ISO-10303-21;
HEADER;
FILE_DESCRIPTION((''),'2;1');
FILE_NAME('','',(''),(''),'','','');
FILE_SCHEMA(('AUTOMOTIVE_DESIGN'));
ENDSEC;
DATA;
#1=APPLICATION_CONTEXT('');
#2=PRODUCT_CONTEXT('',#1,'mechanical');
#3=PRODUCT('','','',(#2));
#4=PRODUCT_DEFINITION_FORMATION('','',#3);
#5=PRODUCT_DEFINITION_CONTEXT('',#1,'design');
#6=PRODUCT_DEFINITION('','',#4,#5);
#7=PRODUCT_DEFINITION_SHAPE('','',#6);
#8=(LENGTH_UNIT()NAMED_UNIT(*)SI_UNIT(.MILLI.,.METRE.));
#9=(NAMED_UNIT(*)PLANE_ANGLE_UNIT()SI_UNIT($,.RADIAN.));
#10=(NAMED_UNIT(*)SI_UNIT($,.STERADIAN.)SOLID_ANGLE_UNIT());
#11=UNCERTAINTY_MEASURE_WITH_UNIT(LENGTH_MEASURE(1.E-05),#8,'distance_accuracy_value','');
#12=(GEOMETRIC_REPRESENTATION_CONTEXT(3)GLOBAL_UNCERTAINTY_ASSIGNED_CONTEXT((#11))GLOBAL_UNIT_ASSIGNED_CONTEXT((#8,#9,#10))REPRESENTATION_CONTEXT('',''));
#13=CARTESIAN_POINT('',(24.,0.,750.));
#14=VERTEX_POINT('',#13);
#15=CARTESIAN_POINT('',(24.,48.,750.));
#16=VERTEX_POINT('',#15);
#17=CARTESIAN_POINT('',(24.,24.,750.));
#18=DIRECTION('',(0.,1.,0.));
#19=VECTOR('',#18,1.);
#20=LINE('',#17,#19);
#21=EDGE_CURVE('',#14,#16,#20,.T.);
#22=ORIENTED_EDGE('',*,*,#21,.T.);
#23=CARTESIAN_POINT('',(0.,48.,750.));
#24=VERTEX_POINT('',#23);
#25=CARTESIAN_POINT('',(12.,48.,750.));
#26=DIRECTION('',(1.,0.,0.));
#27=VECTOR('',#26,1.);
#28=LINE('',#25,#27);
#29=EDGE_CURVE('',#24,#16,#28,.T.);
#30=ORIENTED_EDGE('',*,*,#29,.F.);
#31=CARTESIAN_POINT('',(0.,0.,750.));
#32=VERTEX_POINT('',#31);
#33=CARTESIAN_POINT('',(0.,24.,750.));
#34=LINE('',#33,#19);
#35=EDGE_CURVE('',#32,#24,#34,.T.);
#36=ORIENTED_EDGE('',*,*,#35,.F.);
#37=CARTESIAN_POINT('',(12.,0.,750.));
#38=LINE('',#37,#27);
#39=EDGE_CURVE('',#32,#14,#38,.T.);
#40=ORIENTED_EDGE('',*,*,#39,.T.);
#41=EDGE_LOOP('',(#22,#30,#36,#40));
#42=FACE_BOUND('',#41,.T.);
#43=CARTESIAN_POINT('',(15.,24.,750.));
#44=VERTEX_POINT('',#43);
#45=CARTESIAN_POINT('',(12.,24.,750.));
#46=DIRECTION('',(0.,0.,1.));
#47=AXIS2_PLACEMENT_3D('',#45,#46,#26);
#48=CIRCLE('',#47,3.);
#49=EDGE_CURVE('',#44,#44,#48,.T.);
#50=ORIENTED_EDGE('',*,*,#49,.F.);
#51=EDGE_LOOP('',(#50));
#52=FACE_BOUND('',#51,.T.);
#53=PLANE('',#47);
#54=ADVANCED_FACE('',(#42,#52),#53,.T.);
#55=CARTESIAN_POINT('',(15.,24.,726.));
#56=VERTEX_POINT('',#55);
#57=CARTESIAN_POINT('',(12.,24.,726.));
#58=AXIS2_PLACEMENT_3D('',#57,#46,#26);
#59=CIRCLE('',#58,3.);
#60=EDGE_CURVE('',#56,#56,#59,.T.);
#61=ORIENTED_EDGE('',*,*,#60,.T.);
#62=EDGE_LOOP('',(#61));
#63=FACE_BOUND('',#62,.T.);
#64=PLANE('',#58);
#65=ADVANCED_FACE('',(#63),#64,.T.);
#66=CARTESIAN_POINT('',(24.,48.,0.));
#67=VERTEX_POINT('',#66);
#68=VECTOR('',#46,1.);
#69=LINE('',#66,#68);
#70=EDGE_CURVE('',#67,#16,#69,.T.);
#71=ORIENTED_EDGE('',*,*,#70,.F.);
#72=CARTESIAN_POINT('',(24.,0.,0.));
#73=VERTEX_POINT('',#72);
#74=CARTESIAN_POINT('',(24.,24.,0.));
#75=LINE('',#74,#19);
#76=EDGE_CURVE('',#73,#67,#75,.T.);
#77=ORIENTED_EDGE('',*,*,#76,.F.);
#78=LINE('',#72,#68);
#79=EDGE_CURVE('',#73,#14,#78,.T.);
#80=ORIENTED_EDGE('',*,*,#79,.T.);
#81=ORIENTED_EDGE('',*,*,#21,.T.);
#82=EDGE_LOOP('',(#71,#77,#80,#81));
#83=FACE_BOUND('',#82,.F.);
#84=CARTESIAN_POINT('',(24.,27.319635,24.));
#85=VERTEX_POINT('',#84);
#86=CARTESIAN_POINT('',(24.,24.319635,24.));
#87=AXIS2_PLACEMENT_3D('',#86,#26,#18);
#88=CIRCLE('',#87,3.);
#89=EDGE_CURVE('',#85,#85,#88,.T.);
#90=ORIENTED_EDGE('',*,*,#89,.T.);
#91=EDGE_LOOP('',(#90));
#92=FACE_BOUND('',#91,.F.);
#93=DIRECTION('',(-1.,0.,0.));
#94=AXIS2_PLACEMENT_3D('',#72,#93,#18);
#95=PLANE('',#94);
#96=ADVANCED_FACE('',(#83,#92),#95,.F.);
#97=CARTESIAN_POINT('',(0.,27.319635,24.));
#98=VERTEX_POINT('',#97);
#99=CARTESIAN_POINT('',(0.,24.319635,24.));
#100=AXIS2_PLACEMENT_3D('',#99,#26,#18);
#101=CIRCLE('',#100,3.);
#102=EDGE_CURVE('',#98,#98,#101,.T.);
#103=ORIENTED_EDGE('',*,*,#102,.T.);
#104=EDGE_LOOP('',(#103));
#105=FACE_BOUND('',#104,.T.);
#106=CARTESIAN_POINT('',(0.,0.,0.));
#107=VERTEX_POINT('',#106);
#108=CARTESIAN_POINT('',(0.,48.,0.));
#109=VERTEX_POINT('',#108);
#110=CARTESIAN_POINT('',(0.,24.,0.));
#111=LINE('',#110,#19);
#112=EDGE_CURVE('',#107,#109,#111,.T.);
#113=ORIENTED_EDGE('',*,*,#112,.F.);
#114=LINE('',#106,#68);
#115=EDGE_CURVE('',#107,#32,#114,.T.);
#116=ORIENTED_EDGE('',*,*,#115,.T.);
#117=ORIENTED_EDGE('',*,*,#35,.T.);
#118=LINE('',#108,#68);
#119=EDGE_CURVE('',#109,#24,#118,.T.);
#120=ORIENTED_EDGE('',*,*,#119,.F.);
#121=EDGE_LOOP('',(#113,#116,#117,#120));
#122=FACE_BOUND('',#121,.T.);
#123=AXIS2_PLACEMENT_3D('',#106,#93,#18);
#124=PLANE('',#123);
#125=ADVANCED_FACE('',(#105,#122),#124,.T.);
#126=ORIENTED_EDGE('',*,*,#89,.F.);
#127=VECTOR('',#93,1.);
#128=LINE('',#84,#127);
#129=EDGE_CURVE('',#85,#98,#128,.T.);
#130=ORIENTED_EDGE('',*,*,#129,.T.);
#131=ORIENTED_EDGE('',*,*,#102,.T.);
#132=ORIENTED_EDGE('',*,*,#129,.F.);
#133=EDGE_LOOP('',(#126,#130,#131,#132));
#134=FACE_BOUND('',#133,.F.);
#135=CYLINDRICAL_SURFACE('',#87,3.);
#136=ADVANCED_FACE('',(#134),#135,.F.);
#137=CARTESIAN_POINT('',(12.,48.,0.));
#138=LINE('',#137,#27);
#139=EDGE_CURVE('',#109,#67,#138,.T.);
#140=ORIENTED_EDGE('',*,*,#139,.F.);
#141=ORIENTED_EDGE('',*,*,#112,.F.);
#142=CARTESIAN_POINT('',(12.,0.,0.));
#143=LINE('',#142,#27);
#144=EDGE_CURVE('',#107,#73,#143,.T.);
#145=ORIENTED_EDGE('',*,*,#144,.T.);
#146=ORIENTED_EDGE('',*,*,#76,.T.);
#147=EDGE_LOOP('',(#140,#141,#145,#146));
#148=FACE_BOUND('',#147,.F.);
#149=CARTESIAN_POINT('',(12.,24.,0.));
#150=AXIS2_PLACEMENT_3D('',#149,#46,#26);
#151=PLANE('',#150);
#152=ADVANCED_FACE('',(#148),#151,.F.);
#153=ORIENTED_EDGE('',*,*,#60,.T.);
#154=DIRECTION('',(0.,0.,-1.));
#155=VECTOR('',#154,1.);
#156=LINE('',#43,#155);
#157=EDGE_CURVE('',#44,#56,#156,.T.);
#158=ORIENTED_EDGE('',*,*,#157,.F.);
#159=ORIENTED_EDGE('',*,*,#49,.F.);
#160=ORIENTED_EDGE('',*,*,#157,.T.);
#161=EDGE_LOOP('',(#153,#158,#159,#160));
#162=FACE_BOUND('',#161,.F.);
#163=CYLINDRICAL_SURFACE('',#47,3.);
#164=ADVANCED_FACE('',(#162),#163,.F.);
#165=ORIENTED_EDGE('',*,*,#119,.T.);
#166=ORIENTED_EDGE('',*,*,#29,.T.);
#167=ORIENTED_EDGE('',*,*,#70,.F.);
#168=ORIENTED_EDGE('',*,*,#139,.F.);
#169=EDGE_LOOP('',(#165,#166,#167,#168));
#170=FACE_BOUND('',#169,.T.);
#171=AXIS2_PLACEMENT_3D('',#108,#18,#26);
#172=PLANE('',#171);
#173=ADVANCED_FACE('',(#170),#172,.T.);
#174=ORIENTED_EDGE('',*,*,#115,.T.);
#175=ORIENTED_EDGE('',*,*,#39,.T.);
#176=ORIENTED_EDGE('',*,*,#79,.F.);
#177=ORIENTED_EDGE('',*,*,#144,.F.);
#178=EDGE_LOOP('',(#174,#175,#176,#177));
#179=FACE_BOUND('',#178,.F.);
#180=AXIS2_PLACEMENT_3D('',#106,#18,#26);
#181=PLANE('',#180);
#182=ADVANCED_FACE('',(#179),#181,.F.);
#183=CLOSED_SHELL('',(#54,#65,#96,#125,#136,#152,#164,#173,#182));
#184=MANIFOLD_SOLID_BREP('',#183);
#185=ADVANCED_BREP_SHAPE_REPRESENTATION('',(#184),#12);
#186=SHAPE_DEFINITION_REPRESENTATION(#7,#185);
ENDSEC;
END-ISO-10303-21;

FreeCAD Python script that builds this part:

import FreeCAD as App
import Part
import Sketcher

V = App.Vector


def add_polygon(sketch, points):
    """Adds a closed chain of lines whose ends are joined by coincident constraints."""
    first, n = sketch.GeometryCount, len(points)
    for a, b in zip(points, points[1:] + points[:1]):
        sketch.addGeometry(Part.LineSegment(App.Vector(*a, 0), App.Vector(*b, 0)), False)
    for i in range(n):
        sketch.addConstraint(Sketcher.Constraint("Coincident", first + i, 2, first + (i + 1) % n, 1))

doc = App.newDocument("Part")
body = doc.addObject("PartDesign::Body", "Body")

# Sketch on XY plane
sketch1 = body.newObject("Sketcher::SketchObject", "Sketch")
sketch1.AttachmentSupport = (doc.getObject("XY_Plane"), [""])
sketch1.MapMode = "FlatFace"
add_polygon(sketch1, [(0, 48), (0, 0), (24, 0), (24, 48)])  # lines 0-3
sketch1.addConstraint([
    Sketcher.Constraint("Vertical", 0),
    Sketcher.Constraint("Horizontal", 1),
    Sketcher.Constraint("Vertical", 2),
    Sketcher.Constraint("Horizontal", 3),
    Sketcher.Constraint("Coincident", 0, 2, -1, 1),
    Sketcher.Constraint("DistanceX", 1, 1, 1, 2, 24.0),
    Sketcher.Constraint("DistanceY", 0, 2, 0, 1, 48.0),
])
pad1 = body.newObject("PartDesign::Pad", "Pad")
pad1.Profile = sketch1
pad1.Length = 750

# Sketch on YZ plane
sketch2 = body.newObject("Sketcher::SketchObject", "Sketch001")
sketch2.AttachmentSupport = (doc.getObject("YZ_Plane"), [""])
sketch2.MapMode = "FlatFace"
sketch2.AttachmentOffset = App.Placement(V(0, 0, 24), App.Rotation())
sketch2.addGeometry(Part.Circle(V(24.3, 24, 0), V(0, 0, 1), 3), False)
sketch2.addConstraint([
    Sketcher.Constraint("Diameter", 0, 6.0),
    Sketcher.Constraint("DistanceY", -1, 1, 0, 3, 24.0),
    Sketcher.Constraint("DistanceX", -1, 1, 0, 3, 24.319635),
])
pocket1 = body.newObject("PartDesign::Pocket", "Pocket")
pocket1.Profile = sketch2
pocket1.Type = "ThroughAll"

# Sketch on XY plane
sketch3 = body.newObject("Sketcher::SketchObject", "Sketch002")
sketch3.AttachmentSupport = (doc.getObject("XY_Plane"), [""])
sketch3.MapMode = "FlatFace"
sketch3.AttachmentOffset = App.Placement(V(0, 0, 750), App.Rotation())
sketch3.addGeometry(Part.Circle(V(12, 24, 0), V(0, 0, 1), 3), False)
sketch3.addConstraint([
    Sketcher.Constraint("Diameter", 0, 6.0),
    Sketcher.Constraint("DistanceX", -1, 1, 0, 3, 12.0),
    Sketcher.Constraint("DistanceY", -1, 1, 0, 3, 24.0),
])
pocket2 = body.newObject("PartDesign::Pocket", "Pocket001")
pocket2.Profile = sketch3
pocket2.Length = 24

doc.recompute()
